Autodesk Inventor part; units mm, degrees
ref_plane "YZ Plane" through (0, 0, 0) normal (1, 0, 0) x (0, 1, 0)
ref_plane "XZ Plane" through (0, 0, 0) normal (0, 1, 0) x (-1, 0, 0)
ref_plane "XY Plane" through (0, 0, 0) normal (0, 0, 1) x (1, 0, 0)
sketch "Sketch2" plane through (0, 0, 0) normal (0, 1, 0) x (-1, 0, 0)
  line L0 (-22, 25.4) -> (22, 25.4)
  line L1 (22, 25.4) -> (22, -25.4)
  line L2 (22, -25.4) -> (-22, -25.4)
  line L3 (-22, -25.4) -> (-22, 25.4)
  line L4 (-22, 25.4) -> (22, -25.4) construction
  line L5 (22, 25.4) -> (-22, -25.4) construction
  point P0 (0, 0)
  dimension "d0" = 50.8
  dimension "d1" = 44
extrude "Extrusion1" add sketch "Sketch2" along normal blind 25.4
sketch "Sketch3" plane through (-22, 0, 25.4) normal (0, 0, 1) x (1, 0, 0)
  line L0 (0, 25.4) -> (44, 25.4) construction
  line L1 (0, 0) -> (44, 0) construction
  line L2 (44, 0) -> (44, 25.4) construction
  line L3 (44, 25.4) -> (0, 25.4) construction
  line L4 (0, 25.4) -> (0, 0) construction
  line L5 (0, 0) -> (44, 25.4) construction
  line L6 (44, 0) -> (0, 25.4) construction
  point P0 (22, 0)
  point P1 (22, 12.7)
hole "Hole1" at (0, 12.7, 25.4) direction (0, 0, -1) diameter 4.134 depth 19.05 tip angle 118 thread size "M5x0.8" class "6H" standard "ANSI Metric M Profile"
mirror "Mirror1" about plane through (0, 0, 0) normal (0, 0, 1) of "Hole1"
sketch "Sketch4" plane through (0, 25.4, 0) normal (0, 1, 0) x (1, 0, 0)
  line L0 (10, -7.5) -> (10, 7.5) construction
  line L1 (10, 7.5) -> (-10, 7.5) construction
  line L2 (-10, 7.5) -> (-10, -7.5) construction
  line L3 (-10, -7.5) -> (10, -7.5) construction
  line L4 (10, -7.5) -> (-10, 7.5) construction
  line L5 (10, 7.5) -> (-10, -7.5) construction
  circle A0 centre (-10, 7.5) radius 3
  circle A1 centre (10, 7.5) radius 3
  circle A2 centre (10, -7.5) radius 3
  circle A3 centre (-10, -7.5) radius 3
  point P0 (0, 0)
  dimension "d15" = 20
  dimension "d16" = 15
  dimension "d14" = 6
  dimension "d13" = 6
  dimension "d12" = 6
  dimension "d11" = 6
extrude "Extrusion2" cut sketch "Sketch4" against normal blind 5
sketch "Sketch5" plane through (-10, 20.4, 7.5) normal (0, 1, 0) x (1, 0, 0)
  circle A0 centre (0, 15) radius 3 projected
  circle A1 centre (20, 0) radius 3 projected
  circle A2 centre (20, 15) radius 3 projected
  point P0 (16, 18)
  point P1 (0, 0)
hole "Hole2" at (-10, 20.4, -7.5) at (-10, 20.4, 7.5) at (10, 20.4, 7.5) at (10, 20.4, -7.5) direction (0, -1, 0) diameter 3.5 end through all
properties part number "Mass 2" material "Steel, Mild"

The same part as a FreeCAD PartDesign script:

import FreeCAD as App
import Part
import Sketcher
from FreeCAD import Vector
Q = App.Units.Quantity


def add_polygon(sketch, points):
    """Adds a closed chain of lines whose ends are joined by coincident constraints."""
    first, n = sketch.GeometryCount, len(points)
    for a, b in zip(points, points[1:] + points[:1]):
        sketch.addGeometry(Part.LineSegment(App.Vector(*a, 0), App.Vector(*b, 0)), False)
    for i in range(n):
        sketch.addConstraint(Sketcher.Constraint("Coincident", first + i, 2, first + (i + 1) % n, 1))

doc = App.newDocument("Part")
body = doc.addObject("PartDesign::Body", "Body")

# Sketch on XZ plane
sketch1 = doc.addObject("Sketcher::SketchObject", "Sketch")
body.addObject(sketch1)
sketch1.AttachmentSupport = (doc.XZ_Plane, [""])
sketch1.MapMode = "FlatFace"
add_polygon(sketch1, [(-22, 25), (22, 25), (22, -25), (-22, -25)])  # lines 0-3
sketch1.addConstraint([
    Sketcher.Constraint("Horizontal", 0),
    Sketcher.Constraint("Vertical", 1),
    Sketcher.Constraint("Horizontal", 2),
    Sketcher.Constraint("Vertical", 3),
    Sketcher.Constraint("Symmetric", 0, 2, 2, 2, -1, 1),
    Sketcher.Constraint("DistanceX", 0, 1, 0, 2, Q("44 mm")),
    Sketcher.Constraint("DistanceY", 1, 2, 1, 1, Q("50.8 mm")),
])
pad1 = doc.addObject("PartDesign::Pad", "Pad")
body.addObject(pad1)
pad1.Profile = sketch1
pad1.Length = 25.4
pad1.Reversed = True

# Sketch on XY plane
sketch2 = doc.addObject("Sketcher::SketchObject", "Sketch001")
body.addObject(sketch2)
sketch2.AttachmentSupport = (doc.XY_Plane, [""])
sketch2.MapMode = "FlatFace"
sketch2.AttachmentOffset = App.Placement(Vector(0, 0, 25.4), App.Rotation())
sketch2.addGeometry(Part.Circle(Vector(0, 12.7, 0), Vector(0, 0, 1), 2.1), False)
sketch2.addConstraint([
    Sketcher.Constraint("PointOnObject", 0, 3, -2),
    Sketcher.Constraint("Diameter", 0, Q("4.134 mm")),
    Sketcher.Constraint("DistanceY", -1, 1, 0, 3, Q("12.7 mm")),
])
doc.recompute()
hole = doc.addObject("PartDesign::Hole", "Hole")
body.addObject(hole)
hole.Profile = sketch2
hole.ThreadType = "None"
hole.Diameter = 4.134
hole.DepthType = "Dimension"
hole.Depth = 19.05
hole.DrillPoint = "Angled"
hole.DrillPointAngle = 118
doc.recompute()

mirrored = doc.addObject("PartDesign::Mirrored", "Mirrored")
body.addObject(mirrored)
mirrored.Originals = [hole]
mirrored.MirrorPlane = (doc.XY_Plane, [""])
body.Tip = mirrored

# Sketch on XZ plane
sketch3 = doc.addObject("Sketcher::SketchObject", "Sketch002")
body.addObject(sketch3)
sketch3.AttachmentSupport = (doc.XZ_Plane, [""])
sketch3.MapMode = "FlatFace"
sketch3.AttachmentOffset = App.Placement(Vector(0, 0, -25.4), App.Rotation())
sketch3.addGeometry([
    Part.Circle(Vector(-10, -7.5, 0), Vector(0, 0, 1), 3),
    Part.Circle(Vector(10, -7.5, 0), Vector(0, 0, 1), 3),
    Part.Circle(Vector(10, 7.5, 0), Vector(0, 0, 1), 3),
    Part.Circle(Vector(-10, 7.5, 0), Vector(0, 0, 1), 3),
], False)
sketch3.addConstraint([
    Sketcher.Constraint("Equal", 0, 1),
    Sketcher.Constraint("Equal", 1, 2),
    Sketcher.Constraint("Equal", 2, 3),
    Sketcher.Constraint("Symmetric", 0, 3, 2, 3, -1, 1),
    Sketcher.Constraint("Symmetric", 1, 3, 3, 3, -1, 1),
    Sketcher.Constraint("Symmetric", 0, 3, 1, 3, -2),
    Sketcher.Constraint("Diameter", 0, Q("6 mm")),
    Sketcher.Constraint("DistanceX", 0, 3, 1, 3, Q("20 mm")),
    Sketcher.Constraint("DistanceY", 1, 3, 2, 3, Q("15 mm")),
])
pocket1 = doc.addObject("PartDesign::Pocket", "Pocket")
body.addObject(pocket1)
pocket1.Profile = sketch3
pocket1.Length = 5
pocket1.Reversed = True

# Sketch on XZ plane
sketch4 = doc.addObject("Sketcher::SketchObject", "Sketch003")
body.addObject(sketch4)
sketch4.AttachmentSupport = (doc.XZ_Plane, [""])
sketch4.MapMode = "FlatFace"
sketch4.AttachmentOffset = App.Placement(Vector(0, 0, -20.4), App.Rotation())
sketch4.addGeometry([
    Part.Circle(Vector(-10, -7.5, 0), Vector(0, 0, 1), 1.8),
    Part.Circle(Vector(-10, 7.5, 0), Vector(0, 0, 1), 1.8),
    Part.Circle(Vector(10, 7.5, 0), Vector(0, 0, 1), 1.8),
    Part.Circle(Vector(10, -7.5, 0), Vector(0, 0, 1), 1.8),
], False)
sketch4.addConstraint([
    Sketcher.Constraint("Equal", 0, 1),
    Sketcher.Constraint("Equal", 1, 2),
    Sketcher.Constraint("Equal", 2, 3),
    Sketcher.Constraint("Symmetric", 0, 3, 2, 3, -1, 1),
    Sketcher.Constraint("Symmetric", 1, 3, 3, 3, -1, 1),
    Sketcher.Constraint("Symmetric", 1, 3, 2, 3, -2),
    Sketcher.Constraint("Diameter", 0, Q("3.5 mm")),
    Sketcher.Constraint("DistanceX", 0, 3, -1, 1, Q("10 mm")),
    Sketcher.Constraint("DistanceY", 0, 3, 1, 3, Q("15 mm")),
])
doc.recompute()
hole2 = doc.addObject("PartDesign::Hole", "Hole001")
body.addObject(hole2)
hole2.Profile = sketch4
hole2.ThreadType = "None"
hole2.Diameter = 3.5
hole2.DepthType = "ThroughAll"
hole2.Reversed = True

doc.recompute()
